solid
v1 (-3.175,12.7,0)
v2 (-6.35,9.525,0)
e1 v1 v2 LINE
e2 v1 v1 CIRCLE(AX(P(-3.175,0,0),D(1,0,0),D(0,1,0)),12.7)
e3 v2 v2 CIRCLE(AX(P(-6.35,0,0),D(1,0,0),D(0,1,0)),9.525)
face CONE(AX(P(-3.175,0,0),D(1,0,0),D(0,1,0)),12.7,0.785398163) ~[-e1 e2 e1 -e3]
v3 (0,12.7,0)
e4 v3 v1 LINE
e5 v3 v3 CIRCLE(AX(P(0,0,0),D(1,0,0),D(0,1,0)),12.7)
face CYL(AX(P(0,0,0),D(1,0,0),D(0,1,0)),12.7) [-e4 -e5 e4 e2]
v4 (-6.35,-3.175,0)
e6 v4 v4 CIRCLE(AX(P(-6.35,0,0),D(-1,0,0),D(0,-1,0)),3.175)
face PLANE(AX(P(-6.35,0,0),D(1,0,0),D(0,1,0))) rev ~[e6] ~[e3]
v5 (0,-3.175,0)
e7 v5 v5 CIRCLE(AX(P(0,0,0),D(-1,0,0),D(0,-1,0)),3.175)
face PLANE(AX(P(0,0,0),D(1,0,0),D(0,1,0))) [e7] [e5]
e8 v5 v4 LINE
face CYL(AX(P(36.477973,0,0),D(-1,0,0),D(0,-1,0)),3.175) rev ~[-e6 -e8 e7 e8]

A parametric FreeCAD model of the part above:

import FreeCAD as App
import Part
import Sketcher
Q = App.Units.Quantity


def edges_at(feature, points):
    """Names of the edges that pass closest to the given points."""
    edges = feature.Shape.Edges
    near = lambda p: min(range(len(edges)), key=lambda i: edges[i].distToShape(Part.Vertex(*p))[0])
    return sorted({f"Edge{near(p) + 1}" for p in points})

doc = App.newDocument("Part")
body = doc.addObject("PartDesign::Body", "Body")

# Sketch on YZ plane
sketch1 = body.newObject("Sketcher::SketchObject", "Sketch")
sketch1.AttachmentSupport = (doc.getObject("YZ_Plane"), [""])
sketch1.MapMode = "FlatFace"
sketch1.addGeometry(Part.Circle(App.Vector(0, 0, 0), App.Vector(0, 0, 1), 13), False)
sketch1.addConstraint([
    Sketcher.Constraint("Coincident", 0, 3, -1, 1),
    Sketcher.Constraint("Diameter", 0, Q("1 in")),
])
pad1 = body.newObject("PartDesign::Pad", "Pad")
pad1.Profile = sketch1
pad1.Length = Q("0.25 in")
pad1.Reversed = True

# Sketch on YZ plane
sketch2 = body.newObject("Sketcher::SketchObject", "Sketch001")
sketch2.AttachmentSupport = (doc.getObject("YZ_Plane"), [""])
sketch2.MapMode = "FlatFace"
sketch2.addGeometry(Part.Circle(App.Vector(0, 0, 0), App.Vector(0, 0, 1), 3.2), False)
sketch2.addConstraint([
    Sketcher.Constraint("Coincident", 0, 3, -1, 1),
    Sketcher.Constraint("Diameter", 0, Q("0.25 in")),
])
doc.recompute()
hole = body.newObject("PartDesign::Hole", "Hole")
hole.Profile = sketch2
hole.ThreadType = "None"
hole.Diameter = Q("0.25 in")
hole.DepthType = "ThroughAll"
doc.recompute()

chamfer = body.newObject("PartDesign::Chamfer", "Chamfer")
chamfer.Base = (hole, edges_at(hole, [(-6.35, -12.7, 0)]))
chamfer.Size = Q("0.125 in")

doc.recompute()
